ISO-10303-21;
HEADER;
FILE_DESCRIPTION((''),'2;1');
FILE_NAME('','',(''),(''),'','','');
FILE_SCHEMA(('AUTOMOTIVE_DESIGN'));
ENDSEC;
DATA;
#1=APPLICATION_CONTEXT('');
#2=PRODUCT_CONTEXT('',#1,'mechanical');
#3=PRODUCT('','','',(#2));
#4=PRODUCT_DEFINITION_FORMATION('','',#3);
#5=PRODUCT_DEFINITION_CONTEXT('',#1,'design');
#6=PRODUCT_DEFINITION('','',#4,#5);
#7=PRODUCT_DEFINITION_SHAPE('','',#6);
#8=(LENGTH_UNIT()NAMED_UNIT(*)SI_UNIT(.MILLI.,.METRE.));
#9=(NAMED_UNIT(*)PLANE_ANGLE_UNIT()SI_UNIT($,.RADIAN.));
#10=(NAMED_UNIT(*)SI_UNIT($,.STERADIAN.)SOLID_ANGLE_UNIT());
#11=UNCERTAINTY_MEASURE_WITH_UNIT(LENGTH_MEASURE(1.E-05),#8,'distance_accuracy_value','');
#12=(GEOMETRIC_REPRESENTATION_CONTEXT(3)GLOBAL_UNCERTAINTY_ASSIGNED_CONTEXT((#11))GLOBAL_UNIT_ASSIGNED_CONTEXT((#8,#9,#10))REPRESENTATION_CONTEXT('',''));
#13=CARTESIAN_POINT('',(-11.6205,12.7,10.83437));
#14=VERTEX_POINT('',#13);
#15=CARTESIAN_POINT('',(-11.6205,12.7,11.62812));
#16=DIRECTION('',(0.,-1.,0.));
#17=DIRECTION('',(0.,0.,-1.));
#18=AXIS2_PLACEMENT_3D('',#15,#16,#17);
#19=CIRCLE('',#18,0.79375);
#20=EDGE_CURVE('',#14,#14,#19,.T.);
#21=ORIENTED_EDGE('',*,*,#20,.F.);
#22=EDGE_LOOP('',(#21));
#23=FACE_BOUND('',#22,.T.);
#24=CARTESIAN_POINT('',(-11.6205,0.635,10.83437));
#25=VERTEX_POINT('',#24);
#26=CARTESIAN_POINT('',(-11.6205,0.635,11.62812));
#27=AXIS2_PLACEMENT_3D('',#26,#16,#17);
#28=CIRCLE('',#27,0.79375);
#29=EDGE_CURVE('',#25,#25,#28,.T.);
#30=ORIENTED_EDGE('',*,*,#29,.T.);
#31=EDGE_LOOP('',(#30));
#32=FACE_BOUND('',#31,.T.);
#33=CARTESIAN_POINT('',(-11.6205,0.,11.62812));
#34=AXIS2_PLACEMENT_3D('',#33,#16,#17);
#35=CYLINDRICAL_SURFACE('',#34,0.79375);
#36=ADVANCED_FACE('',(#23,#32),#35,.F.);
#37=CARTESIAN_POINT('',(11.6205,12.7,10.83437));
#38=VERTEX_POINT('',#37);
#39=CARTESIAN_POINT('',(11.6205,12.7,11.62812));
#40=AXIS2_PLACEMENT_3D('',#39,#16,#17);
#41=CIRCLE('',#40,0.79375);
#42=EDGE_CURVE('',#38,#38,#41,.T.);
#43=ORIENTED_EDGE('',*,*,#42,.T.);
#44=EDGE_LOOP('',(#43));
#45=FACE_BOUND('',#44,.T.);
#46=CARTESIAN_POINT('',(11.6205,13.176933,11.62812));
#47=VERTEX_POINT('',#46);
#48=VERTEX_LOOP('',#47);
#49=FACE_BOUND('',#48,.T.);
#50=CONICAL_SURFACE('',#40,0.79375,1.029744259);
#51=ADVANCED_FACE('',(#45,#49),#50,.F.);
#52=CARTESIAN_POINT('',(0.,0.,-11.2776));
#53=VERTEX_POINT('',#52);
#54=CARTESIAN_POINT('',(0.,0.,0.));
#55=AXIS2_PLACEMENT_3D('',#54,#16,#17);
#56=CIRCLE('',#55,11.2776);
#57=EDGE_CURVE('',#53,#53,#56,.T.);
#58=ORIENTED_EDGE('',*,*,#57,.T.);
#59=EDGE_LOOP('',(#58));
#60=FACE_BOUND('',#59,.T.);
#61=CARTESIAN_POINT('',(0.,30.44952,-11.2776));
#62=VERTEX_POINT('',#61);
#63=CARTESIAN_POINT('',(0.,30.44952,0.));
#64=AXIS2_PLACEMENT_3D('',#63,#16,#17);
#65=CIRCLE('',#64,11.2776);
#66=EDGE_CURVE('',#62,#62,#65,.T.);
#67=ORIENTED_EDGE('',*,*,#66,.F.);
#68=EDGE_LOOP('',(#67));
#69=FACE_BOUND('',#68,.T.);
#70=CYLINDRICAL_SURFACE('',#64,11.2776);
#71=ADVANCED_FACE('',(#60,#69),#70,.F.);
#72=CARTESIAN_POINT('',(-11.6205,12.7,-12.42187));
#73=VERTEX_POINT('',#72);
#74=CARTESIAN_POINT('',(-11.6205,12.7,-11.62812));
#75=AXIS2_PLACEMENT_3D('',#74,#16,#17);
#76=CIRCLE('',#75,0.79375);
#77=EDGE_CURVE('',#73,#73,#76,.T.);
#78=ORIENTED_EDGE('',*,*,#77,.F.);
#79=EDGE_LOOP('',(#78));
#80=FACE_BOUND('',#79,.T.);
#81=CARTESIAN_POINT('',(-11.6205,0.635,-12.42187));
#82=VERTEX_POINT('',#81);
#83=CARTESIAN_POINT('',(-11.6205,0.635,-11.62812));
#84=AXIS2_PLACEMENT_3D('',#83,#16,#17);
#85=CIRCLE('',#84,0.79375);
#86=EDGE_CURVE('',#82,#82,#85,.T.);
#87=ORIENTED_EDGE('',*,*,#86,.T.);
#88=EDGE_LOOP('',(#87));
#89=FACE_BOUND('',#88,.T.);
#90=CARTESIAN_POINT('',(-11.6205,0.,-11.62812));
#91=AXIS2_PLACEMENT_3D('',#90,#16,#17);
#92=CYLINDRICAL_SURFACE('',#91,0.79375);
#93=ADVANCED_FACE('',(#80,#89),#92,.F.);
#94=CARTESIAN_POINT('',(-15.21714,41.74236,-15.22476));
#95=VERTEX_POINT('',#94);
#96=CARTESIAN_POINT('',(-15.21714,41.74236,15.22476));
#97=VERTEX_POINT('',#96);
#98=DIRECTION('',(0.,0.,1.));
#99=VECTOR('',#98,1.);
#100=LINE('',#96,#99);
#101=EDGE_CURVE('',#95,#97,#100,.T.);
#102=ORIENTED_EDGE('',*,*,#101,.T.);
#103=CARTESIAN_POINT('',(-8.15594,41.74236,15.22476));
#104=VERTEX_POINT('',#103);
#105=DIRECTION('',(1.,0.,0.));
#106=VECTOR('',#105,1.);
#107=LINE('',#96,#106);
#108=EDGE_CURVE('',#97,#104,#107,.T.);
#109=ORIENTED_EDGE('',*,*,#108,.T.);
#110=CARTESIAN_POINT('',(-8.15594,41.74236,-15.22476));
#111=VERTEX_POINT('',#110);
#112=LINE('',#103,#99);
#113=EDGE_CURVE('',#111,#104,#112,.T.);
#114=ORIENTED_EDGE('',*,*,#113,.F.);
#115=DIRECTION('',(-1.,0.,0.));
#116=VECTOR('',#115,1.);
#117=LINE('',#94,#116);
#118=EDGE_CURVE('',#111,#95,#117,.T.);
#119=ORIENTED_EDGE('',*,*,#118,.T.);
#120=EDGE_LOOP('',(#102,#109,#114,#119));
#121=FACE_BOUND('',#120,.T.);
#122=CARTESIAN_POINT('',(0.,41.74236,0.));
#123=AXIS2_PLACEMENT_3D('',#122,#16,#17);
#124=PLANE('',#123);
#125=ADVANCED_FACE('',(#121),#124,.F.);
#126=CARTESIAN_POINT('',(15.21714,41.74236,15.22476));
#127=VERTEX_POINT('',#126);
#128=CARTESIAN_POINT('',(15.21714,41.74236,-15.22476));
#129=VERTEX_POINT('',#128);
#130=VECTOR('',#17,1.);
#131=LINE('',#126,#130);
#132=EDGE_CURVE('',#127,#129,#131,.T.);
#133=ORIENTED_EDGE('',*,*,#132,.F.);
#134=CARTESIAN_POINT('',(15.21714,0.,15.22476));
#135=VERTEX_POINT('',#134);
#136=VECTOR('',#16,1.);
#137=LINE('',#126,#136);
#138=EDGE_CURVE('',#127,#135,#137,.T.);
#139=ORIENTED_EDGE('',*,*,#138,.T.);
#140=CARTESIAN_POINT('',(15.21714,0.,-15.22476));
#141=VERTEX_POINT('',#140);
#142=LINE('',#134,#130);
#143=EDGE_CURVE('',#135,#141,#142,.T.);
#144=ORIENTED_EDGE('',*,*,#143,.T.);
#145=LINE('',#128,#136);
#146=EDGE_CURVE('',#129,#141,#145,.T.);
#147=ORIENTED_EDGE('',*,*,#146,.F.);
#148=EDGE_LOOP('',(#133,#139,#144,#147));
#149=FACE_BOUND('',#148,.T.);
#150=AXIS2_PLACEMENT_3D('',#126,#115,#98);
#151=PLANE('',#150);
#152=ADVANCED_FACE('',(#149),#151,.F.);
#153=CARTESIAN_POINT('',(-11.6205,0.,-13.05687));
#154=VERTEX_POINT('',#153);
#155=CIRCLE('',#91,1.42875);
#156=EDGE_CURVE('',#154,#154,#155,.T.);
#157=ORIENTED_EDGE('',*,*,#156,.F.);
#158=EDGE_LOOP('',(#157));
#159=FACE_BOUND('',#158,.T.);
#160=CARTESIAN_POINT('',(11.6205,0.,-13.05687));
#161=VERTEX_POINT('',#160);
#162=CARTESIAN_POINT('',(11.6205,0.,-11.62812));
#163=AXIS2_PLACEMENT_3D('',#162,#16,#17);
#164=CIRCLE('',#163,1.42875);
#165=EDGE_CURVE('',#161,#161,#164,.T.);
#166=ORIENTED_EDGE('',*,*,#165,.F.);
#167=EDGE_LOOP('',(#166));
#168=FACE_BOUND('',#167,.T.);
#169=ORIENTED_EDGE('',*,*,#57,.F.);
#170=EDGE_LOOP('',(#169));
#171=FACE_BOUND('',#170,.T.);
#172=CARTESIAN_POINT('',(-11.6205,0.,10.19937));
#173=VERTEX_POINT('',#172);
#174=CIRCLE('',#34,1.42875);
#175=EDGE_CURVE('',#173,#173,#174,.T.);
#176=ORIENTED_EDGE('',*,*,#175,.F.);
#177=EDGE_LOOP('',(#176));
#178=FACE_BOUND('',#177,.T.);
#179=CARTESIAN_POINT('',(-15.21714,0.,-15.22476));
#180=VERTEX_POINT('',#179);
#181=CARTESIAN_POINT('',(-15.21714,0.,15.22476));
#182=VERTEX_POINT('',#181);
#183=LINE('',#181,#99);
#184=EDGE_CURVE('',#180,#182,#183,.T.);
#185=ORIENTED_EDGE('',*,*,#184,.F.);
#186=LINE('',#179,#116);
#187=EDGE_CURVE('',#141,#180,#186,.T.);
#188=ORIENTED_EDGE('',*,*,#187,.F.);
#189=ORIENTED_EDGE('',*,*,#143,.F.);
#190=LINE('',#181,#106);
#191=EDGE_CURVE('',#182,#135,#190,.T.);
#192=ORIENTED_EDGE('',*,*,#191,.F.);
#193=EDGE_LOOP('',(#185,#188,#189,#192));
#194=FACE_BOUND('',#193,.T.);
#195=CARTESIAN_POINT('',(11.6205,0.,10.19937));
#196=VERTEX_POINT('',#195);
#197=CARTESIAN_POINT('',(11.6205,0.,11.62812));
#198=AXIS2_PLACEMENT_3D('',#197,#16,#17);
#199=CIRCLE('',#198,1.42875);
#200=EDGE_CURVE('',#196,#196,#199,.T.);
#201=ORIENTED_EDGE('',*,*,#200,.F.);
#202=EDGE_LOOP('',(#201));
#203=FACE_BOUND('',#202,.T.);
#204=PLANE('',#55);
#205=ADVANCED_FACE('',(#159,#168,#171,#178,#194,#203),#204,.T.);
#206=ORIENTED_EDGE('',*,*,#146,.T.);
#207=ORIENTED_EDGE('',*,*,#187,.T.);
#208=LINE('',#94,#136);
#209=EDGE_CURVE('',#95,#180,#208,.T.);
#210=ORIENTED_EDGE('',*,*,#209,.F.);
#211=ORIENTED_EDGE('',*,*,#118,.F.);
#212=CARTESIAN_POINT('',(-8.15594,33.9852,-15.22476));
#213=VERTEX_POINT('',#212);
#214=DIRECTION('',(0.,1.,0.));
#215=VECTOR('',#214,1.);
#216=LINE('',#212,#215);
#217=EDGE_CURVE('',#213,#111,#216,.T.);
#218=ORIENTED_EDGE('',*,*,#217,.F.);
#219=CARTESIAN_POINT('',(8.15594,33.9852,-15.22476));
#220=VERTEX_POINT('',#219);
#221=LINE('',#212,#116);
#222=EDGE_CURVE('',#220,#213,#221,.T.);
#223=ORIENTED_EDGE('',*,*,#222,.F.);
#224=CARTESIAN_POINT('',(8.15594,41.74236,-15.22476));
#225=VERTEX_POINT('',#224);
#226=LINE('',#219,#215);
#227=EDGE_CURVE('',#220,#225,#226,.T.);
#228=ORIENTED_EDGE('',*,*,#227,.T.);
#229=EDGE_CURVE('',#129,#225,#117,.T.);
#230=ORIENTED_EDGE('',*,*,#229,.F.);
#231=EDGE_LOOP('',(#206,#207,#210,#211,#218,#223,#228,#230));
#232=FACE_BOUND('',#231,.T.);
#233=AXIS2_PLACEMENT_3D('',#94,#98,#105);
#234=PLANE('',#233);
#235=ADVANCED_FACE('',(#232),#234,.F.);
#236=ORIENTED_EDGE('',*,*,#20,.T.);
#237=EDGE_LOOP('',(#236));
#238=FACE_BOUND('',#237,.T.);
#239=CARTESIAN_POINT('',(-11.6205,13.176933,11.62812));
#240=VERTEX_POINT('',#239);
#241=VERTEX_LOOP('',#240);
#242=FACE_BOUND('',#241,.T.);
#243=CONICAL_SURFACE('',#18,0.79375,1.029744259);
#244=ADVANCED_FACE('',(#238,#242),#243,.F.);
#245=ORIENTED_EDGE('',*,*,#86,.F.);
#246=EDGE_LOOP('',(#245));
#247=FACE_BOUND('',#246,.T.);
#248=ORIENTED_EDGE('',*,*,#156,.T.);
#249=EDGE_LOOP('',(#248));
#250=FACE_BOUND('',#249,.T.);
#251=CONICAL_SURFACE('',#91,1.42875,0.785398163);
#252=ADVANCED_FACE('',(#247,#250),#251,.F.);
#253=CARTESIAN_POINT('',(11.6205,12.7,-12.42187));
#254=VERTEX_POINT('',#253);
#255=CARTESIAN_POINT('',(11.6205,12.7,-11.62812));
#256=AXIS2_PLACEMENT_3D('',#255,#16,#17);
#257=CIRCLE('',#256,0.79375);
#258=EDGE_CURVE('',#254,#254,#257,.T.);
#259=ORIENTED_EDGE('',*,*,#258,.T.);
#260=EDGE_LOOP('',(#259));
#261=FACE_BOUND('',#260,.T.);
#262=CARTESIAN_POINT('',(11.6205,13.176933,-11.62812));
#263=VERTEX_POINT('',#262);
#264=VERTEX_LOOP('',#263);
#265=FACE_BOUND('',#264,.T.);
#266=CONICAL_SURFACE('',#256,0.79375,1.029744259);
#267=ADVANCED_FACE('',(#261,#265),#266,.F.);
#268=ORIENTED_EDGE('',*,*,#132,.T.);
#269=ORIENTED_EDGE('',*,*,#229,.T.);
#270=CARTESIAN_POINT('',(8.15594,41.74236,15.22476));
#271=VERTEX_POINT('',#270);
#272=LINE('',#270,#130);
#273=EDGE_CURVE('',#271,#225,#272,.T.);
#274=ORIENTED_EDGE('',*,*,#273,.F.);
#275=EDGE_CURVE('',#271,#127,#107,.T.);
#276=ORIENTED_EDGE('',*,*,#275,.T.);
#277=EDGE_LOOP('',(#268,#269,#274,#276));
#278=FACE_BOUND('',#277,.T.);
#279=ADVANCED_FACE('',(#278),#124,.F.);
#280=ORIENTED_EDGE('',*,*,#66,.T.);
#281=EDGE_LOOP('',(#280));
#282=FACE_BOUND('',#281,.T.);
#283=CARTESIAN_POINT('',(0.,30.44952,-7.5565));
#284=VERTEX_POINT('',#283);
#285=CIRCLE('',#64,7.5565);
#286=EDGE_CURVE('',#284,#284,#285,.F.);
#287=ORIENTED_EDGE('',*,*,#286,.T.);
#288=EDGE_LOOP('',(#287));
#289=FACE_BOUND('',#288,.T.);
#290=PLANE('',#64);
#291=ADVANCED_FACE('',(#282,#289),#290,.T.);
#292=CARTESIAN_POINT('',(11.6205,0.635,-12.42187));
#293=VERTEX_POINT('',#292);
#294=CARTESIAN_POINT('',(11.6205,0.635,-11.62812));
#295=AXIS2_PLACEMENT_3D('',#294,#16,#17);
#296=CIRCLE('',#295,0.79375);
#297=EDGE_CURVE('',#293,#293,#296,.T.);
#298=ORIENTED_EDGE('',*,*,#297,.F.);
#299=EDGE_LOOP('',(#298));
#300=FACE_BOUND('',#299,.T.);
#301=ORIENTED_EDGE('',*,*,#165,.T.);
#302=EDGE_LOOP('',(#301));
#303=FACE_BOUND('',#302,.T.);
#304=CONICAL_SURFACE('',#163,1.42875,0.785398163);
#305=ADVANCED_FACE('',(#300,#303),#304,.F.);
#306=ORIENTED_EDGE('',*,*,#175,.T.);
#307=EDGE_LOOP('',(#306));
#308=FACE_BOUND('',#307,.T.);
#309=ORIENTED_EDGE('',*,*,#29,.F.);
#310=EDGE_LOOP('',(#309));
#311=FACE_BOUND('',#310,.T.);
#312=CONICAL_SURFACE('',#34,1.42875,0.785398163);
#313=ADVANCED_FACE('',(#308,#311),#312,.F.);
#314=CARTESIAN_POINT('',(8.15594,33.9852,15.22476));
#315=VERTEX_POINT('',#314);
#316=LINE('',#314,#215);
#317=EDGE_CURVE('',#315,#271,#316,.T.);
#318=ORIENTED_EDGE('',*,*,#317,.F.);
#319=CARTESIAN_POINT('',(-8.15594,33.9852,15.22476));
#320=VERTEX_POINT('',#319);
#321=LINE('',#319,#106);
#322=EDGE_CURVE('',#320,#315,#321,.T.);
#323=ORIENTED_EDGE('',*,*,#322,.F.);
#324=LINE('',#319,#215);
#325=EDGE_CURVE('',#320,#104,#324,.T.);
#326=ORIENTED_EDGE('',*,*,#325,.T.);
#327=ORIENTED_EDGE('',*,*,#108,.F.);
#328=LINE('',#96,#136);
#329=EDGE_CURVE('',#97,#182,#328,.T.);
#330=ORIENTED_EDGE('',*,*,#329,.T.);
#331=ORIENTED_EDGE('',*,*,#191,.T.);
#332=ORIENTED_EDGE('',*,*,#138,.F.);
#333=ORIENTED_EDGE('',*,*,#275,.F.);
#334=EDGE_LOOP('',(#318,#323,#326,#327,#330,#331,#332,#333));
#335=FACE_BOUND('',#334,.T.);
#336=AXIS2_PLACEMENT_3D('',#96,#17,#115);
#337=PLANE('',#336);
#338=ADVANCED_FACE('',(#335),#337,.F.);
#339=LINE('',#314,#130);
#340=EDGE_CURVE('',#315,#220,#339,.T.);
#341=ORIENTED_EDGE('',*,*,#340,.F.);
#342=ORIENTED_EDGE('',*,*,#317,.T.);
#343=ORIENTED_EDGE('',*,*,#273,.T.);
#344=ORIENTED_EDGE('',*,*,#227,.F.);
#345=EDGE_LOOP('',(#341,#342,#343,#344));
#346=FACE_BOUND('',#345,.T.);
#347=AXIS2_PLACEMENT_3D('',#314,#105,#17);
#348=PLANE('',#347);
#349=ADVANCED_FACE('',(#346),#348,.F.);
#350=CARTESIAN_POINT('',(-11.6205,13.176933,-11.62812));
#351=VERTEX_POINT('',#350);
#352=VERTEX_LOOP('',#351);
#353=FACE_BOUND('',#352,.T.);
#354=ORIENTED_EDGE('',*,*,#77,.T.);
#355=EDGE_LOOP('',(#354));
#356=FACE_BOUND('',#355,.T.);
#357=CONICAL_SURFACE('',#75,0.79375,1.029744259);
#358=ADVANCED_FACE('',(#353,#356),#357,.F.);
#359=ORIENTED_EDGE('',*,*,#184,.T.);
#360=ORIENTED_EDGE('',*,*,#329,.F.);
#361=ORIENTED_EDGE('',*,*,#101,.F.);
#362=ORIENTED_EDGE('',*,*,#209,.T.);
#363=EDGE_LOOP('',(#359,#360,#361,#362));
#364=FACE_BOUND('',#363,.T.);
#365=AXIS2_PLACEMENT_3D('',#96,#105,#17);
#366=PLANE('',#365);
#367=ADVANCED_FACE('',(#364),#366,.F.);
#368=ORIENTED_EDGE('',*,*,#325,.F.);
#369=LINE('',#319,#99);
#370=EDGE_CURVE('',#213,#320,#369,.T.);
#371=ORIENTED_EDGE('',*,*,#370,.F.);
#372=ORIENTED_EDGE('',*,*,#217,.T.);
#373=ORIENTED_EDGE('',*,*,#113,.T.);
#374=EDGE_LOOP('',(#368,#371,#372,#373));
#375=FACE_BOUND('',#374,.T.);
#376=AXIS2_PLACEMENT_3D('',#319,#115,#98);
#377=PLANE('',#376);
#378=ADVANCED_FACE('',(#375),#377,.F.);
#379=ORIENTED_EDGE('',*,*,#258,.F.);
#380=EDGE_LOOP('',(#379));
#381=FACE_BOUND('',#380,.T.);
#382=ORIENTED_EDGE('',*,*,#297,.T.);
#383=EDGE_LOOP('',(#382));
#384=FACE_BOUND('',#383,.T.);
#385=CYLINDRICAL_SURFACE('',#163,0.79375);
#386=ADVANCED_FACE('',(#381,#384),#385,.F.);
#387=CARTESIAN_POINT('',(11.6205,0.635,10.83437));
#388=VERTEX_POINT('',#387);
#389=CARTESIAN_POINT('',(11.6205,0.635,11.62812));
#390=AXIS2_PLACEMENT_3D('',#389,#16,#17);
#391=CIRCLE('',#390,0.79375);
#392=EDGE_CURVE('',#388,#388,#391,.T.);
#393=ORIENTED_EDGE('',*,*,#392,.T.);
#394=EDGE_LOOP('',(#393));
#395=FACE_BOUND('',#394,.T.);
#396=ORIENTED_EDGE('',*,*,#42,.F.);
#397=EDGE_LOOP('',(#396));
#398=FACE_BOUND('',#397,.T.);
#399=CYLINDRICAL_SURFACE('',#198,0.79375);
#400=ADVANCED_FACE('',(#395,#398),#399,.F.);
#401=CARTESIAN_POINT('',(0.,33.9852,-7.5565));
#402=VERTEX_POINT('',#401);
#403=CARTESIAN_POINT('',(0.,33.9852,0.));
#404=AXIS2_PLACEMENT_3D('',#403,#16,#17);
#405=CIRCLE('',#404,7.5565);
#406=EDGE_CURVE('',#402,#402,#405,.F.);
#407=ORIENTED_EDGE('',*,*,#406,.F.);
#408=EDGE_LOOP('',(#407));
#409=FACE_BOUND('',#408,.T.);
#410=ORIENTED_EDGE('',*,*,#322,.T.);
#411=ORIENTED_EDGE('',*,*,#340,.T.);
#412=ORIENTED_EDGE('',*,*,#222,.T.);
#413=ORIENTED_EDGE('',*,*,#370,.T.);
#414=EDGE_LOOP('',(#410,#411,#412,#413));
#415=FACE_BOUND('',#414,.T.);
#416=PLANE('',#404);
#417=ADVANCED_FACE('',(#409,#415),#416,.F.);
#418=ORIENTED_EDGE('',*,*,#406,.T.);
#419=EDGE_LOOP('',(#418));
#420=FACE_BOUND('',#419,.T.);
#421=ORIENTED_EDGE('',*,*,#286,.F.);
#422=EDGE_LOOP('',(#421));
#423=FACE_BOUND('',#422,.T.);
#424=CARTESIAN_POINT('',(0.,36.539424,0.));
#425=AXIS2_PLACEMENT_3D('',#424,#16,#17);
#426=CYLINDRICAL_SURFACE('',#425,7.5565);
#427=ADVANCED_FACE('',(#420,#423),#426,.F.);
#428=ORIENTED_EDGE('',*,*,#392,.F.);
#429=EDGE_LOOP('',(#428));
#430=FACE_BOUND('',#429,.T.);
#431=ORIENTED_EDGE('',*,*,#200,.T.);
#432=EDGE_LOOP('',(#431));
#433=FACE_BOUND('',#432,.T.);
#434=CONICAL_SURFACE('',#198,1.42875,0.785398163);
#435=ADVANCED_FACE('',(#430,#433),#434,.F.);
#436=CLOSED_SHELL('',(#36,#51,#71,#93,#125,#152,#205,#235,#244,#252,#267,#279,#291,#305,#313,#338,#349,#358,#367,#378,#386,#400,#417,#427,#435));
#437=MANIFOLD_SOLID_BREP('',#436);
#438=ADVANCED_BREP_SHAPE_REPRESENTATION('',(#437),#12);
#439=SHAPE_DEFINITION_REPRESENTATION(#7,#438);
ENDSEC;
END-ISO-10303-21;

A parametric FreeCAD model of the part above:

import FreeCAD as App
import Part
import Sketcher

V = App.Vector
Q = App.Units.Quantity

doc = App.newDocument("Part")
params = doc.addObject("Spreadsheet::Sheet", "Params")
for row, (alias, value) in enumerate([
    ("pad1_length", "1.6434 in"),
    ("sketch2_diameter", "0.595 in"),
    ("pocket1_length", "36.539424 mm"),
    ("pocket2_length", "0.3054 in"),
    ("sketch4_diameter", "0.888 in"),
    ("pocket3_length", "1.1988 in"),
    ("sketch5_diameter", "0.0625 in"),
    ("hole_diameter", "0.0625 in"),
    ("hole_depth", "0.5 in"),
    ("hole_csink_diameter", "0.1125 in"),
], start=1):
    params.set(f"A{row}", alias)
    params.set(f"B{row}", "=" + value)
    params.setAlias(f"B{row}", alias)

body = doc.addObject("PartDesign::Body", "Body")

sketch1 = body.newObject("Sketcher::SketchObject", "Sketch")
sketch1.AttachmentSupport = (doc.getObject("XZ_Plane"), [""])
sketch1.MapMode = "FlatFace"
sketch1.addGeometry(Part.LineSegment(V(-15, -15, 0), V(-15, 15, 0)), False)
sketch1.addGeometry(Part.LineSegment(V(-15, 15, 0), V(15, 15, 0)), False)
sketch1.addGeometry(Part.LineSegment(V(15, 15, 0), V(15, -15, 0)), False)
sketch1.addGeometry(Part.LineSegment(V(15, -15, 0), V(-15, -15, 0)), False)
sketch1.addConstraint(Sketcher.Constraint("Coincident", 0, 2, 1, 1))
sketch1.addConstraint(Sketcher.Constraint("Coincident", 1, 2, 2, 1))
sketch1.addConstraint(Sketcher.Constraint("Coincident", 2, 2, 3, 1))
sketch1.addConstraint(Sketcher.Constraint("Coincident", 3, 2, 0, 1))
sketch1.addConstraint(Sketcher.Constraint("Vertical", 0))
sketch1.addConstraint(Sketcher.Constraint("Horizontal", 1))
sketch1.addConstraint(Sketcher.Constraint("Vertical", 2))
sketch1.addConstraint(Sketcher.Constraint("Horizontal", 3))
sketch1.addConstraint(Sketcher.Constraint("Symmetric", 0, 2, 2, 2, -1, 1))
sketch1.addConstraint(Sketcher.Constraint("DistanceX", 1, 1, 1, 2, Q("1.1982 in")))
sketch1.addConstraint(Sketcher.Constraint("DistanceY", 0, 1, 0, 2, Q("1.1988 in")))
pad1 = body.newObject("PartDesign::Pad", "Pad")
pad1.Profile = sketch1
pad1.setExpression("Length", "Params.pad1_length")
pad1.Reversed = True

sketch2 = body.newObject("Sketcher::SketchObject", "Sketch001")
sketch2.AttachmentSupport = (doc.getObject("XZ_Plane"), [""])
sketch2.MapMode = "FlatFace"
sketch2.addGeometry(Part.Circle(V(0, 0, 0), V(0, 0, 1), 8), False)
sketch2.addConstraint(Sketcher.Constraint("Coincident", 0, 3, -1, 1))
sketch2.addConstraint(Sketcher.Constraint("Diameter", 0, Q("0.595 in")))
sketch2.setExpression("Constraints[1]", "Params.sketch2_diameter")
pocket1 = body.newObject("PartDesign::Pocket", "Pocket")
pocket1.Profile = sketch2
pocket1.setExpression("Length", "Params.pocket1_length")

sketch3 = body.newObject("Sketcher::SketchObject", "Sketch002")
sketch3.AttachmentSupport = (doc.getObject("XZ_Plane"), [""])
sketch3.MapMode = "FlatFace"
sketch3.AttachmentOffset = App.Placement(V(0, 0, -1.6434 * 25.4), App.Rotation())
sketch3.addGeometry(Part.LineSegment(V(-8, -15, 0), V(-8, 15, 0)), False)
sketch3.addGeometry(Part.LineSegment(V(-8, 15, 0), V(8, 15, 0)), False)
sketch3.addGeometry(Part.LineSegment(V(8, 15, 0), V(8, -15, 0)), False)
sketch3.addGeometry(Part.LineSegment(V(8, -15, 0), V(-8, -15, 0)), False)
sketch3.addConstraint(Sketcher.Constraint("Coincident", 0, 2, 1, 1))
sketch3.addConstraint(Sketcher.Constraint("Coincident", 1, 2, 2, 1))
sketch3.addConstraint(Sketcher.Constraint("Coincident", 2, 2, 3, 1))
sketch3.addConstraint(Sketcher.Constraint("Coincident", 3, 2, 0, 1))
sketch3.addConstraint(Sketcher.Constraint("Vertical", 0))
sketch3.addConstraint(Sketcher.Constraint("Horizontal", 1))
sketch3.addConstraint(Sketcher.Constraint("Vertical", 2))
sketch3.addConstraint(Sketcher.Constraint("Horizontal", 3))
sketch3.addConstraint(Sketcher.Constraint("Symmetric", 0, 2, 2, 2, -1, 1))
sketch3.addConstraint(Sketcher.Constraint("DistanceX", 1, 1, 1, 2, Q("0.6422 in")))
sketch3.addConstraint(Sketcher.Constraint("DistanceY", 0, 1, 0, 2, Q("1.1988 in")))
pocket2 = body.newObject("PartDesign::Pocket", "Pocket001")
pocket2.Profile = sketch3
pocket2.setExpression("Length", "Params.pocket2_length")
pocket2.Reversed = True

sketch4 = body.newObject("Sketcher::SketchObject", "Sketch003")
sketch4.AttachmentSupport = (doc.getObject("XZ_Plane"), [""])
sketch4.MapMode = "FlatFace"
sketch4.addGeometry(Part.Circle(V(0, 0, 0), V(0, 0, 1), 11), False)
sketch4.addConstraint(Sketcher.Constraint("Coincident", 0, 3, -1, 1))
sketch4.addConstraint(Sketcher.Constraint("Diameter", 0, Q("0.888 in")))
sketch4.setExpression("Constraints[1]", "Params.sketch4_diameter")
pocket3 = body.newObject("PartDesign::Pocket", "Pocket002")
pocket3.Profile = sketch4
pocket3.setExpression("Length", "Params.pocket3_length")

sketch5 = body.newObject("Sketcher::SketchObject", "Sketch004")
sketch5.AttachmentSupport = (doc.getObject("XZ_Plane"), [""])
sketch5.MapMode = "FlatFace"
sketch5.addGeometry(Part.Circle(V(11.6, -11.6, 0), V(0, 0, 1), 0.8), False)
sketch5.addGeometry(Part.Circle(V(-11.6, -11.6, 0), V(0, 0, 1), 0.8), False)
sketch5.addGeometry(Part.Circle(V(-11.6, 11.6, 0), V(0, 0, 1), 0.8), False)
sketch5.addGeometry(Part.Circle(V(11.6, 11.6, 0), V(0, 0, 1), 0.8), False)
sketch5.addConstraint(Sketcher.Constraint("Equal", 0, 1))
sketch5.addConstraint(Sketcher.Constraint("Equal", 1, 2))
sketch5.addConstraint(Sketcher.Constraint("Equal", 2, 3))
sketch5.addConstraint(Sketcher.Constraint("Symmetric", 0, 3, 2, 3, -1, 1))
sketch5.addConstraint(Sketcher.Constraint("Symmetric", 1, 3, 3, 3, -1, 1))
sketch5.addConstraint(Sketcher.Constraint("Symmetric", 0, 3, 1, 3, -2))
sketch5.addConstraint(Sketcher.Constraint("Diameter", 0, Q("0.0625 in")))
sketch5.addConstraint(Sketcher.Constraint("DistanceX", 1, 3, 0, 3, Q("0.915 in")))
sketch5.addConstraint(Sketcher.Constraint("DistanceY", 0, 3, -1, 1, Q("0.4578 in")))
sketch5.setExpression("Constraints[6]", "Params.sketch5_diameter")
doc.recompute()
hole = body.newObject("PartDesign::Hole", "Hole")
hole.Profile = sketch5
hole.ThreadType = "None"
hole.setExpression("Diameter", "Params.hole_diameter")
hole.DepthType = "Dimension"
hole.setExpression("Depth", "Params.hole_depth")
hole.DrillPoint = "Angled"
hole.DrillPointAngle = 118
hole.HoleCutType = "Countersink"
hole.setExpression("HoleCutDiameter", "Params.hole_csink_diameter")
hole.HoleCutCountersinkAngle = 90

doc.recompute()
